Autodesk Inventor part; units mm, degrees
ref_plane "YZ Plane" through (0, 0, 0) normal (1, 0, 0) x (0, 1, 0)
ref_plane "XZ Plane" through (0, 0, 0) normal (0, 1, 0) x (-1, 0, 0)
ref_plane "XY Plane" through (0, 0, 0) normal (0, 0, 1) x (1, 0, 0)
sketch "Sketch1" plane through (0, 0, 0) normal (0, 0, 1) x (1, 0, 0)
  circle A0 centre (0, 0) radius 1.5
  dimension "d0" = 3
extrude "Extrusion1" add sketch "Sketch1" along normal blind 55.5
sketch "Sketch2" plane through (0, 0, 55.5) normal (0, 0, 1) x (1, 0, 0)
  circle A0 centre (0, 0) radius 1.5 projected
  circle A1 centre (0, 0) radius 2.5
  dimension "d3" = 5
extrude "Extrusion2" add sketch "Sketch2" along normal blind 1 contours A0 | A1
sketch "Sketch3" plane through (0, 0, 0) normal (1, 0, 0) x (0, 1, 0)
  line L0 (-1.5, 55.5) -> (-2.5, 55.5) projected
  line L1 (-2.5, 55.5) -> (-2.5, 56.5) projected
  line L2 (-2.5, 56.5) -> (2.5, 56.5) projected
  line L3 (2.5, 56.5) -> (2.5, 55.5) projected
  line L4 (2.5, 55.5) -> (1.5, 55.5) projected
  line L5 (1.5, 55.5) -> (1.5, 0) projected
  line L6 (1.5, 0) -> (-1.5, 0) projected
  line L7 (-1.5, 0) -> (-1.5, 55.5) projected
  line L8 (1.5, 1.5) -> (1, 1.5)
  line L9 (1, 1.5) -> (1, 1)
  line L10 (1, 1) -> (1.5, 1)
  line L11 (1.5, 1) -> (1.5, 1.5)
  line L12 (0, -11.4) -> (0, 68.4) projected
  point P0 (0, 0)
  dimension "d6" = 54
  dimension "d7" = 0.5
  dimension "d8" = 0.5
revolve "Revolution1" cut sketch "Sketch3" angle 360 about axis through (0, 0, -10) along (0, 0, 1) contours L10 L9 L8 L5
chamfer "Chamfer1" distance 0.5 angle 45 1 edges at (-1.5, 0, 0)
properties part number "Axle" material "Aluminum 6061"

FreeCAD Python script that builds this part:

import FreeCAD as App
import Part
import Sketcher
from FreeCAD import Vector
Q = App.Units.Quantity


def edges_at(feature, points):
    """Names of the edges that pass closest to the given points."""
    edges = feature.Shape.Edges
    near = lambda p: min(range(len(edges)), key=lambda i: edges[i].distToShape(Part.Vertex(*p))[0])
    return sorted({f"Edge{near(p) + 1}" for p in points})

doc = App.newDocument("Part")
body = doc.addObject("PartDesign::Body", "Body")

# Sketch on XY plane
sketch1 = body.newObject("Sketcher::SketchObject", "Sketch")
sketch1.AttachmentSupport = (doc.getObject("XY_Plane"), [""])
sketch1.MapMode = "FlatFace"
sketch1.addGeometry(Part.Circle(Vector(0, 0, 0), Vector(0, 0, 1), 1.5), False)
sketch1.addConstraint(Sketcher.Constraint("Coincident", 0, 3, -1, 1))
sketch1.addConstraint(Sketcher.Constraint("Diameter", 0, Q("3 mm")))
pad1 = body.newObject("PartDesign::Pad", "Pad")
pad1.Profile = sketch1
pad1.Length = 55.5

# Sketch on XY plane
sketch2 = body.newObject("Sketcher::SketchObject", "Sketch001")
sketch2.AttachmentSupport = (doc.getObject("XY_Plane"), [""])
sketch2.MapMode = "FlatFace"
sketch2.AttachmentOffset = App.Placement(Vector(0, 0, 55.5), App.Rotation())
sketch2.addGeometry(Part.Circle(Vector(0, 0, 0), Vector(0, 0, 1), 2.5), False)
sketch2.addConstraint(Sketcher.Constraint("Coincident", 0, 3, -1, 1))
sketch2.addConstraint(Sketcher.Constraint("Diameter", 0, Q("5 mm")))
pad2 = body.newObject("PartDesign::Pad", "Pad001")
pad2.Profile = sketch2
pad2.Length = 1

# Sketch on YZ plane
sketch3 = body.newObject("Sketcher::SketchObject", "Sketch002")
sketch3.AttachmentSupport = (doc.getObject("YZ_Plane"), [""])
sketch3.MapMode = "FlatFace"
sketch3.addGeometry(Part.LineSegment(Vector(1, 1, 0), Vector(1.5, 1, 0)), False)
sketch3.addGeometry(Part.LineSegment(Vector(1.5, 1, 0), Vector(1.5, 1.5, 0)), False)
sketch3.addGeometry(Part.LineSegment(Vector(1.5, 1.5, 0), Vector(1, 1.5, 0)), False)
sketch3.addGeometry(Part.LineSegment(Vector(1, 1.5, 0), Vector(1, 1, 0)), False)
sketch3.addConstraint(Sketcher.Constraint("Coincident", 0, 2, 1, 1))
sketch3.addConstraint(Sketcher.Constraint("Coincident", 1, 2, 2, 1))
sketch3.addConstraint(Sketcher.Constraint("Coincident", 2, 2, 3, 1))
sketch3.addConstraint(Sketcher.Constraint("Coincident", 3, 2, 0, 1))
sketch3.addConstraint(Sketcher.Constraint("Horizontal", 0))
sketch3.addConstraint(Sketcher.Constraint("Vertical", 1))
sketch3.addConstraint(Sketcher.Constraint("Horizontal", 2))
sketch3.addConstraint(Sketcher.Constraint("Vertical", 3))
sketch3.addConstraint(Sketcher.Constraint("Equal", 2, 1))
sketch3.addConstraint(Sketcher.Constraint("DistanceX", 0, 1, 0, 2, Q("0.5 mm")))
sketch3.addConstraint(Sketcher.Constraint("DistanceY", -1, 1, 0, 2, Q("1 mm")))
sketch3.addConstraint(Sketcher.Constraint("DistanceX", -1, 1, 2, 2, Q("1 mm")))
groove = body.newObject("PartDesign::Groove", "Groove")
groove.Profile = sketch3
groove.ReferenceAxis = (sketch3, ["V_Axis"])
groove.Angle = 360
doc.recompute()

chamfer = body.newObject("PartDesign::Chamfer", "Chamfer")
chamfer.Base = (groove, edges_at(groove, [(-1.5, 0, 0)]))
chamfer.Size = 0.5

doc.recompute()
